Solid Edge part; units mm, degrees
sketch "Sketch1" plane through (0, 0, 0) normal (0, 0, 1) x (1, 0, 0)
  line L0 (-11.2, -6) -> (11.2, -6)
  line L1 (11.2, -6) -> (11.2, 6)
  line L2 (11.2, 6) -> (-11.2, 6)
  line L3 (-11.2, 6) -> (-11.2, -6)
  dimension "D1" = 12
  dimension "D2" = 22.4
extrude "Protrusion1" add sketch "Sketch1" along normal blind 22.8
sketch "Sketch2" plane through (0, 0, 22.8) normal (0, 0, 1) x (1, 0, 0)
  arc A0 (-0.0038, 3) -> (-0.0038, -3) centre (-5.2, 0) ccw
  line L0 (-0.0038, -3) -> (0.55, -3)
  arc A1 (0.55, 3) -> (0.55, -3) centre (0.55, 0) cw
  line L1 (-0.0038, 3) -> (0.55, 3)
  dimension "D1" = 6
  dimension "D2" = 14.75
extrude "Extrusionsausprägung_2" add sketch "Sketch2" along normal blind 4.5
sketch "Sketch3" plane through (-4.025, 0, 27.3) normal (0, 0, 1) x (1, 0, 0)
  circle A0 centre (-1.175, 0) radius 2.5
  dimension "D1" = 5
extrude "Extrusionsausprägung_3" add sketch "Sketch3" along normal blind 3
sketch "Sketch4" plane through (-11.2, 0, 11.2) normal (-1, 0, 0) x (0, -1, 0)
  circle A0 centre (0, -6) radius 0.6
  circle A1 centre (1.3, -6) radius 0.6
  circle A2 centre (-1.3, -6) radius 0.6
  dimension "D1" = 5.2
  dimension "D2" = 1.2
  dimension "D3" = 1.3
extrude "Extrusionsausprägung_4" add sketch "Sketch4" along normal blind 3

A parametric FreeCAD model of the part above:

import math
import FreeCAD as App
import Part
import Sketcher
Q = App.Units.Quantity


def add_polygon(sketch, points):
    """Adds a closed chain of lines whose ends are joined by coincident constraints."""
    first, n = sketch.GeometryCount, len(points)
    for a, b in zip(points, points[1:] + points[:1]):
        sketch.addGeometry(Part.LineSegment(App.Vector(*a, 0), App.Vector(*b, 0)), False)
    for i in range(n):
        sketch.addConstraint(Sketcher.Constraint("Coincident", first + i, 2, first + (i + 1) % n, 1))

doc = App.newDocument("Part")
body = doc.addObject("PartDesign::Body", "Body")

# Sketch on XY plane
sketch1 = body.newObject("Sketcher::SketchObject", "Sketch")
sketch1.AttachmentSupport = (doc.getObject("XY_Plane"), [""])
sketch1.MapMode = "FlatFace"
add_polygon(sketch1, [(-11, 6), (-11, -6), (11, -6), (11, 6)])  # lines 0-3
sketch1.addConstraint([
    Sketcher.Constraint("Vertical", 0),
    Sketcher.Constraint("Horizontal", 1),
    Sketcher.Constraint("Vertical", 2),
    Sketcher.Constraint("Horizontal", 3),
    Sketcher.Constraint("Symmetric", 0, 2, 2, 2, -1, 1),
    Sketcher.Constraint("DistanceX", 0, 2, -1, 1, Q("11.2 mm")),
    Sketcher.Constraint("DistanceY", 0, 2, 0, 1, Q("12 mm")),
])
pad1 = body.newObject("PartDesign::Pad", "Pad")
pad1.Profile = sketch1
pad1.Length = 22.8

# Sketch on XY plane
sketch2 = body.newObject("Sketcher::SketchObject", "Sketch001")
sketch2.AttachmentSupport = (doc.getObject("XY_Plane"), [""])
sketch2.MapMode = "FlatFace"
sketch2.AttachmentOffset = App.Placement(App.Vector(0, 0, 22.8), App.Rotation())
sketch2.addGeometry([
    Part.LineSegment(App.Vector(0.6, 3, 0), App.Vector(0, 3, 0)),
    Part.ArcOfCircle(Part.Circle(App.Vector(-5.2, 0, 0), App.Vector(0, 0, 1), 6), math.radians(30), math.radians(330)),
    Part.LineSegment(App.Vector(0, -3, 0), App.Vector(0.6, -3, 0)),
    Part.ArcOfCircle(Part.Circle(App.Vector(0.6, 0, 0), App.Vector(0, 0, 1), 3), math.radians(-90), math.radians(90)),
], False)
sketch2.addConstraint([
    Sketcher.Constraint("Coincident", 0, 2, 1, 1),
    Sketcher.Constraint("Coincident", 1, 2, 2, 1),
    Sketcher.Constraint("Tangent", 2, 2, 3, 1),
    Sketcher.Constraint("Tangent", 3, 2, 0, 1),
    Sketcher.Constraint("Horizontal", 0),
    Sketcher.Constraint("Horizontal", 2),
    Sketcher.Constraint("Symmetric", 0, 2, 1, 2, -1),
    Sketcher.Constraint("Radius", 1, Q("6 mm")),
    Sketcher.Constraint("Radius", 3, Q("3 mm")),
    Sketcher.Constraint("DistanceX", 1, 3, -1, 1, Q("5.2 mm")),
    Sketcher.Constraint("DistanceX", -1, 1, 3, 3, Q("0.55 mm")),
])
pad2 = body.newObject("PartDesign::Pad", "Pad001")
pad2.Profile = sketch2
pad2.Length = 4.5

# Sketch on XY plane
sketch3 = body.newObject("Sketcher::SketchObject", "Sketch002")
sketch3.AttachmentSupport = (doc.getObject("XY_Plane"), [""])
sketch3.MapMode = "FlatFace"
sketch3.AttachmentOffset = App.Placement(App.Vector(0, 0, 27.3), App.Rotation())
sketch3.addGeometry(Part.Circle(App.Vector(-5.2, 0, 0), App.Vector(0, 0, 1), 2.5), False)
sketch3.addConstraint([
    Sketcher.Constraint("PointOnObject", 0, 3, -1),
    Sketcher.Constraint("Diameter", 0, Q("5 mm")),
    Sketcher.Constraint("DistanceX", 0, 3, -1, 1, Q("5.2 mm")),
])
pad3 = body.newObject("PartDesign::Pad", "Pad002")
pad3.Profile = sketch3
pad3.Length = 3

# Sketch on YZ plane
sketch4 = body.newObject("Sketcher::SketchObject", "Sketch003")
sketch4.AttachmentSupport = (doc.getObject("YZ_Plane"), [""])
sketch4.MapMode = "FlatFace"
sketch4.AttachmentOffset = App.Placement(App.Vector(0, 0, -11.2), App.Rotation())
sketch4.addGeometry([
    Part.Circle(App.Vector(0, 5.2, 0), App.Vector(0, 0, 1), 0.6),
    Part.Circle(App.Vector(-1.3, 5.2, 0), App.Vector(0, 0, 1), 0.6),
    Part.Circle(App.Vector(1.3, 5.2, 0), App.Vector(0, 0, 1), 0.6),
], False)
sketch4.addConstraint([
    Sketcher.Constraint("Equal", 0, 1),
    Sketcher.Constraint("Equal", 1, 2),
    Sketcher.Constraint("Symmetric", 1, 3, 2, 3, -2),
    Sketcher.Constraint("PointOnObject", 0, 3, -2),
    Sketcher.Constraint("Horizontal", 0, 3, 1, 3),
    Sketcher.Constraint("Diameter", 0, Q("1.2 mm")),
    Sketcher.Constraint("DistanceY", -1, 1, 0, 3, Q("5.2 mm")),
    Sketcher.Constraint("DistanceX", 1, 3, -1, 1, Q("1.3 mm")),
])
pad4 = body.newObject("PartDesign::Pad", "Pad003")
pad4.Profile = sketch4
pad4.Length = 3
pad4.Reversed = True

doc.recompute()
